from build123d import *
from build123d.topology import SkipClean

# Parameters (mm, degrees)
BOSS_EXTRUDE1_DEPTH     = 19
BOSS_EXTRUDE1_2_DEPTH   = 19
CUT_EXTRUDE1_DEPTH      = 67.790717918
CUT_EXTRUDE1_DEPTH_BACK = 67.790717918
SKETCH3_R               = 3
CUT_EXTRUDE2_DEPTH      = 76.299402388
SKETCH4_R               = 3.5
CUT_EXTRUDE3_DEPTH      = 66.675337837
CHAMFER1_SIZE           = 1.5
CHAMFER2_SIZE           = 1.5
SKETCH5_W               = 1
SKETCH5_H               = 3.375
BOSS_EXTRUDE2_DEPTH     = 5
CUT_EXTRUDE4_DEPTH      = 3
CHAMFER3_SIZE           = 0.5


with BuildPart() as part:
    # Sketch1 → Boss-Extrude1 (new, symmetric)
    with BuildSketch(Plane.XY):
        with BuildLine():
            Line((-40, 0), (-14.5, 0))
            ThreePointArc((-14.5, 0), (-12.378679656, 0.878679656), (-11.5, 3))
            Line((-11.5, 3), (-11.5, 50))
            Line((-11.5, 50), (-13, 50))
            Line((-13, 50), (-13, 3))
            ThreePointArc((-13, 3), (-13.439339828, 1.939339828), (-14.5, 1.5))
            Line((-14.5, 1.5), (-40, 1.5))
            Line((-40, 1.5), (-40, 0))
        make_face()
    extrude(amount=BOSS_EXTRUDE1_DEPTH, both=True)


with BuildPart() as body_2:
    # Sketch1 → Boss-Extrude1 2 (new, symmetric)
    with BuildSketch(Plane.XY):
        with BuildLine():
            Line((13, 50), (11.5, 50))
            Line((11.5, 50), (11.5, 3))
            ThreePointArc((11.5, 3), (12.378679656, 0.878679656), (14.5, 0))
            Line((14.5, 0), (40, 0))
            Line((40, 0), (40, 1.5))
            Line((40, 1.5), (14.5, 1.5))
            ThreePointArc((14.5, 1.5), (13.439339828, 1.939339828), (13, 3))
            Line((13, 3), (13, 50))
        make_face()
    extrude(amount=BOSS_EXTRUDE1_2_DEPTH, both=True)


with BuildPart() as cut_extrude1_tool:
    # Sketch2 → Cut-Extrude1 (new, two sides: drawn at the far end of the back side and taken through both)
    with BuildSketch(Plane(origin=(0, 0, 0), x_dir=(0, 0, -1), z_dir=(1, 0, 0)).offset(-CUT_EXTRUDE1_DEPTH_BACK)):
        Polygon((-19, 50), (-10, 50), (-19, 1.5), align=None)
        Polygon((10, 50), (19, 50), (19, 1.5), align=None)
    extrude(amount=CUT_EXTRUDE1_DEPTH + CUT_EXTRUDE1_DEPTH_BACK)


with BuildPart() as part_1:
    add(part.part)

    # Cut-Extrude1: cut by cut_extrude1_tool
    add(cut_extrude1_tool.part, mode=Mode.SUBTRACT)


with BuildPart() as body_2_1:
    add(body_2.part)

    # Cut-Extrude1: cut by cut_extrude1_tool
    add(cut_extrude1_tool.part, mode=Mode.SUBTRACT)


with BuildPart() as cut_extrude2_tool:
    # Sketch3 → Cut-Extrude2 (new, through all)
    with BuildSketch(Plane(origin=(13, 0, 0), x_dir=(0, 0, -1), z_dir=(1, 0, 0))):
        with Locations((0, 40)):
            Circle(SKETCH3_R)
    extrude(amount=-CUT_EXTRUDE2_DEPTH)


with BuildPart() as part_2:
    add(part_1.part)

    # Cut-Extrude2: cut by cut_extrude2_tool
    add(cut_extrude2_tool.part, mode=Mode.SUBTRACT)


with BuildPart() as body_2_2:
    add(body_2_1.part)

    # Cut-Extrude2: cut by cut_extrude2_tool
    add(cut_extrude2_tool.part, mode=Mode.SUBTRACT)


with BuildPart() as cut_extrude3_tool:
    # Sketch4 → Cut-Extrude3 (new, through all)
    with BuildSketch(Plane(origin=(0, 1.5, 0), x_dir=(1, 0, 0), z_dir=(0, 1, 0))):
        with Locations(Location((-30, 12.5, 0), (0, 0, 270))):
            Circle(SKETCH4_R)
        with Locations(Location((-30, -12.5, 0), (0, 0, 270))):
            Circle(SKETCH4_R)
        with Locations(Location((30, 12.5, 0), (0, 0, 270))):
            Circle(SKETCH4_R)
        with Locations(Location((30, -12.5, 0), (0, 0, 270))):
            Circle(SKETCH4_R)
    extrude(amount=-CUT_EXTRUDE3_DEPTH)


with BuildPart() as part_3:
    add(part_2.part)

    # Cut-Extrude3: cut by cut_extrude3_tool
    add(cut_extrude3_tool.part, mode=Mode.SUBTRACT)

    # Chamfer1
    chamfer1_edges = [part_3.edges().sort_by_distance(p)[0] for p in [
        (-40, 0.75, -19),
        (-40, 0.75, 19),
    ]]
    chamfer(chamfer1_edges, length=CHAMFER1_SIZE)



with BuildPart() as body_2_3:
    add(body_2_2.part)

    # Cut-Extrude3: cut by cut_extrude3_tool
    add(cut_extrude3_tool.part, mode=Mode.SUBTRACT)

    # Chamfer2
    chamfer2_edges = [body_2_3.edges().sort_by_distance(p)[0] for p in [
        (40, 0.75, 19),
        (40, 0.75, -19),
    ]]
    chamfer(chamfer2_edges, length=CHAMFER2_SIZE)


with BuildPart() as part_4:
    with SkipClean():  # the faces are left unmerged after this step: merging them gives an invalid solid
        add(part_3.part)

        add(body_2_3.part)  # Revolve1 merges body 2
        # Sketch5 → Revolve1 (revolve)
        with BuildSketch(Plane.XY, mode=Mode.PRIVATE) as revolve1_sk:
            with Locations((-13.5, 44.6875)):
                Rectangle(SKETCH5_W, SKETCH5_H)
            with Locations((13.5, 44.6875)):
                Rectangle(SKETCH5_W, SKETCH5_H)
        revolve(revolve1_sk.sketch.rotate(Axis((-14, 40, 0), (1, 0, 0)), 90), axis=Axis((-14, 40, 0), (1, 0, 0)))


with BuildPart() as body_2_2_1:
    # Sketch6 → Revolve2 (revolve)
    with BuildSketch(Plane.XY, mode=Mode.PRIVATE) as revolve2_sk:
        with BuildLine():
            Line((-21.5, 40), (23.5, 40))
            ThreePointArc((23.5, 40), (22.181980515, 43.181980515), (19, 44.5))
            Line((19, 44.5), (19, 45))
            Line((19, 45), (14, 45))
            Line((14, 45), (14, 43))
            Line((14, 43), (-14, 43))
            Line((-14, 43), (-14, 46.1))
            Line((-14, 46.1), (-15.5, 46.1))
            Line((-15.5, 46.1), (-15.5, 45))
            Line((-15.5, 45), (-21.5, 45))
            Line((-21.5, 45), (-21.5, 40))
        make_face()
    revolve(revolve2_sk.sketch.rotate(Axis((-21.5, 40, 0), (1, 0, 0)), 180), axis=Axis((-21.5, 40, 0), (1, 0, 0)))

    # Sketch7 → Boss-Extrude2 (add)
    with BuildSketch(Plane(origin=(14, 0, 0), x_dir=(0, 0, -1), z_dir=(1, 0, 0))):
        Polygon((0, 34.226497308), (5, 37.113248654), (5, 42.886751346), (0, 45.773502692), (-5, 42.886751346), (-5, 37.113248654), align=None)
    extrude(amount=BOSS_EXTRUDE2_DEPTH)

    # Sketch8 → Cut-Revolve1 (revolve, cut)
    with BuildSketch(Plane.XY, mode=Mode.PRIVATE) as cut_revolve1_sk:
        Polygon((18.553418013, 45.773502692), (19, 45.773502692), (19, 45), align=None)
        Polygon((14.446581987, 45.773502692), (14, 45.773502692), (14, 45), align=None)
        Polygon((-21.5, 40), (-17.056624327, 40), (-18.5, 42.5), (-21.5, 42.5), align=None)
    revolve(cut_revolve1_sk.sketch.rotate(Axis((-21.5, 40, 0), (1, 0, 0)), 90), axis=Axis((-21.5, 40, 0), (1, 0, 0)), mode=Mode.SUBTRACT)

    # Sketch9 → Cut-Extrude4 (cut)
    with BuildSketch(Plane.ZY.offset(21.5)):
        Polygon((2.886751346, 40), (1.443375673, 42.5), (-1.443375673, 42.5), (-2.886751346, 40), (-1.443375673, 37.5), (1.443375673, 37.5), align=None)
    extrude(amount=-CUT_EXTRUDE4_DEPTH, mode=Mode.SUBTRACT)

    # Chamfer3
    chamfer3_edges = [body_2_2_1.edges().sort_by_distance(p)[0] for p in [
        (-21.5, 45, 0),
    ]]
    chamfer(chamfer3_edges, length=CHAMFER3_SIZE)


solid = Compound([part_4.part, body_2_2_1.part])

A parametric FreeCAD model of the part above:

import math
import FreeCAD as App
import Part
import Sketcher
Q = App.Units.Quantity


def edges_at(feature, points):
    """Names of the edges that pass closest to the given points."""
    edges = feature.Shape.Edges
    near = lambda p: min(range(len(edges)), key=lambda i: edges[i].distToShape(Part.Vertex(*p))[0])
    return sorted({f"Edge{near(p) + 1}" for p in points})

doc = App.newDocument("Part")
body = doc.addObject("PartDesign::Body", "Body")

sketch1 = body.newObject("Sketcher::SketchObject", "Sketch")
sketch1.AttachmentSupport = (doc.getObject("XY_Plane"), [""])
sketch1.MapMode = "FlatFace"
sketch1.addGeometry(Part.LineSegment(App.Vector(-40, 0, 0), App.Vector(-14.5, 0, 0)), False)
sketch1.addGeometry(Part.ArcOfCircle(Part.Circle(App.Vector(-14.5, 3, 0), App.Vector(0, 0, 1), 3), math.radians(-90), math.radians(0)), False)
sketch1.addGeometry(Part.LineSegment(App.Vector(-11.5, 3, 0), App.Vector(-11.5, 50, 0)), False)
sketch1.addGeometry(Part.LineSegment(App.Vector(-11.5, 50, 0), App.Vector(-13, 50, 0)), False)
sketch1.addGeometry(Part.LineSegment(App.Vector(-13, 50, 0), App.Vector(-13, 3, 0)), False)
sketch1.addGeometry(Part.ArcOfCircle(Part.Circle(App.Vector(-14.5, 3, 0), App.Vector(0, 0, 1), 1.5), math.radians(-90), math.radians(0)), False)
sketch1.addGeometry(Part.LineSegment(App.Vector(-14.5, 1.5, 0), App.Vector(-40, 1.5, 0)), False)
sketch1.addGeometry(Part.LineSegment(App.Vector(-40, 1.5, 0), App.Vector(-40, 0, 0)), False)
sketch1.addConstraint(Sketcher.Constraint("Tangent", 0, 2, 1, 1))
sketch1.addConstraint(Sketcher.Constraint("Tangent", 1, 2, 2, 1))
sketch1.addConstraint(Sketcher.Constraint("Coincident", 2, 2, 3, 1))
sketch1.addConstraint(Sketcher.Constraint("Coincident", 3, 2, 4, 1))
sketch1.addConstraint(Sketcher.Constraint("Tangent", 4, 2, 5, 2))
sketch1.addConstraint(Sketcher.Constraint("Tangent", 5, 1, 6, 1))
sketch1.addConstraint(Sketcher.Constraint("Coincident", 6, 2, 7, 1))
sketch1.addConstraint(Sketcher.Constraint("Coincident", 7, 2, 0, 1))
sketch1.addConstraint(Sketcher.Constraint("Horizontal", 0))
sketch1.addConstraint(Sketcher.Constraint("Vertical", 2))
sketch1.addConstraint(Sketcher.Constraint("Horizontal", 3))
sketch1.addConstraint(Sketcher.Constraint("Vertical", 4))
sketch1.addConstraint(Sketcher.Constraint("Horizontal", 6))
sketch1.addConstraint(Sketcher.Constraint("Vertical", 7))
sketch1.addConstraint(Sketcher.Constraint("Coincident", 5, 3, 1, 3))
sketch1.addConstraint(Sketcher.Constraint("PointOnObject", 0, 2, -1))
sketch1.addConstraint(Sketcher.Constraint("Radius", 1, Q("3 mm")))
sketch1.addConstraint(Sketcher.Constraint("Radius", 5, Q("1.5 mm")))
sketch1.addConstraint(Sketcher.Constraint("DistanceY", 2, 1, 2, 2, Q("47 mm")))
sketch1.addConstraint(Sketcher.Constraint("DistanceX", 0, 1, 0, 2, Q("25.5 mm")))
sketch1.addConstraint(Sketcher.Constraint("DistanceX", 3, 2, -1, 1, Q("13 mm")))
pad1 = body.newObject("PartDesign::Pad", "Pad")
pad1.Profile = sketch1
pad1.Length = 38
pad1.Midplane = True
body2 = doc.addObject("PartDesign::Body", "Body001")

sketch2 = body2.newObject("Sketcher::SketchObject", "Sketch001")
sketch2.AttachmentSupport = (doc.getObject("XY_Plane001"), [""])
sketch2.MapMode = "FlatFace"
sketch2.addGeometry(Part.LineSegment(App.Vector(13, 50, 0), App.Vector(11.5, 50, 0)), False)
sketch2.addGeometry(Part.LineSegment(App.Vector(11.5, 50, 0), App.Vector(11.5, 3, 0)), False)
sketch2.addGeometry(Part.ArcOfCircle(Part.Circle(App.Vector(14.5, 3, 0), App.Vector(0, 0, 1), 3), math.radians(180), math.radians(270)), False)
sketch2.addGeometry(Part.LineSegment(App.Vector(14.5, 0, 0), App.Vector(40, 0, 0)), False)
sketch2.addGeometry(Part.LineSegment(App.Vector(40, 0, 0), App.Vector(40, 1.5, 0)), False)
sketch2.addGeometry(Part.LineSegment(App.Vector(40, 1.5, 0), App.Vector(14.5, 1.5, 0)), False)
sketch2.addGeometry(Part.ArcOfCircle(Part.Circle(App.Vector(14.5, 3, 0), App.Vector(0, 0, 1), 1.5), math.radians(180), math.radians(270)), False)
sketch2.addGeometry(Part.LineSegment(App.Vector(13, 3, 0), App.Vector(13, 50, 0)), False)
sketch2.addConstraint(Sketcher.Constraint("Coincident", 0, 2, 1, 1))
sketch2.addConstraint(Sketcher.Constraint("Tangent", 1, 2, 2, 1))
sketch2.addConstraint(Sketcher.Constraint("Tangent", 2, 2, 3, 1))
sketch2.addConstraint(Sketcher.Constraint("Coincident", 3, 2, 4, 1))
sketch2.addConstraint(Sketcher.Constraint("Coincident", 4, 2, 5, 1))
sketch2.addConstraint(Sketcher.Constraint("Tangent", 5, 2, 6, 2))
sketch2.addConstraint(Sketcher.Constraint("Tangent", 6, 1, 7, 1))
sketch2.addConstraint(Sketcher.Constraint("Coincident", 7, 2, 0, 1))
sketch2.addConstraint(Sketcher.Constraint("Horizontal", 0))
sketch2.addConstraint(Sketcher.Constraint("Vertical", 1))
sketch2.addConstraint(Sketcher.Constraint("Horizontal", 3))
sketch2.addConstraint(Sketcher.Constraint("Vertical", 4))
sketch2.addConstraint(Sketcher.Constraint("Horizontal", 5))
sketch2.addConstraint(Sketcher.Constraint("Vertical", 7))
sketch2.addConstraint(Sketcher.Constraint("Coincident", 6, 3, 2, 3))
sketch2.addConstraint(Sketcher.Constraint("PointOnObject", 2, 2, -1))
sketch2.addConstraint(Sketcher.Constraint("Radius", 2, Q("3 mm")))
sketch2.addConstraint(Sketcher.Constraint("Radius", 6, Q("1.5 mm")))
sketch2.addConstraint(Sketcher.Constraint("DistanceY", 1, 2, 1, 1, Q("47 mm")))
sketch2.addConstraint(Sketcher.Constraint("DistanceX", 3, 1, 3, 2, Q("25.5 mm")))
sketch2.addConstraint(Sketcher.Constraint("DistanceX", -1, 1, 3, 2, Q("40 mm")))
pad2 = body2.newObject("PartDesign::Pad", "Pad001")
pad2.Profile = sketch2
pad2.Length = 38
pad2.Midplane = True
body3 = doc.addObject("PartDesign::Body", "Body002")
body3.AllowCompound = True

sketch3 = body3.newObject("Sketcher::SketchObject", "Sketch002")
sketch3.AttachmentSupport = (doc.getObject("YZ_Plane002"), [""])
sketch3.MapMode = "FlatFace"
sketch3.addGeometry(Part.LineSegment(App.Vector(50, 10, 0), App.Vector(50, 19, 0)), False)
sketch3.addGeometry(Part.LineSegment(App.Vector(50, 19, 0), App.Vector(2, 19, 0)), False)
sketch3.addGeometry(Part.LineSegment(App.Vector(2, 19, 0), App.Vector(50, 10, 0)), False)
sketch3.addGeometry(Part.LineSegment(App.Vector(50, -19, 0), App.Vector(50, -10, 0)), False)
sketch3.addGeometry(Part.LineSegment(App.Vector(50, -10, 0), App.Vector(2, -19, 0)), False)
sketch3.addGeometry(Part.LineSegment(App.Vector(2, -19, 0), App.Vector(50, -19, 0)), False)
sketch3.addConstraint(Sketcher.Constraint("Coincident", 0, 2, 1, 1))
sketch3.addConstraint(Sketcher.Constraint("Coincident", 1, 2, 2, 1))
sketch3.addConstraint(Sketcher.Constraint("Coincident", 2, 2, 0, 1))
sketch3.addConstraint(Sketcher.Constraint("Coincident", 3, 2, 4, 1))
sketch3.addConstraint(Sketcher.Constraint("Coincident", 4, 2, 5, 1))
sketch3.addConstraint(Sketcher.Constraint("Coincident", 5, 2, 3, 1))
sketch3.addConstraint(Sketcher.Constraint("Vertical", 0))
sketch3.addConstraint(Sketcher.Constraint("Horizontal", 1))
sketch3.addConstraint(Sketcher.Constraint("Vertical", 3))
sketch3.addConstraint(Sketcher.Constraint("Horizontal", 5))
sketch3.addConstraint(Sketcher.Constraint("Symmetric", 2, 2, 3, 2, -1))
sketch3.addConstraint(Sketcher.Constraint("Symmetric", 1, 2, 4, 2, -1))
sketch3.addConstraint(Sketcher.Constraint("DistanceY", 0, 1, 0, 2, Q("9 mm")))
sketch3.addConstraint(Sketcher.Constraint("DistanceX", 1, 2, 1, 1, Q("48.5 mm")))
sketch3.addConstraint(Sketcher.Constraint("DistanceX", -1, 1, 0, 2, Q("50 mm")))
sketch3.addConstraint(Sketcher.Constraint("DistanceY", -1, 1, 0, 2, Q("19 mm")))
pad3 = body3.newObject("PartDesign::Pad", "Pad002")
pad3.Profile = sketch3
pad3.Type = "TwoLengths"
pad3.Length = 67.790718
pad3.Length2 = 67.790718
doc.recompute()

body4 = doc.addObject("PartDesign::Body", "Body003")
body4.BaseFeature = body3
boolean = body.newObject("PartDesign::Boolean", "Boolean")
boolean.Type = "Cut"
boolean.addObjects([body4])
doc.recompute()

boolean2 = body2.newObject("PartDesign::Boolean", "Boolean001")
boolean2.Type = "Cut"
boolean2.addObjects([body3])
body5 = doc.addObject("PartDesign::Body", "Body004")

sketch4 = body5.newObject("Sketcher::SketchObject", "Sketch003")
sketch4.AttachmentSupport = (doc.getObject("YZ_Plane004"), [""])
sketch4.MapMode = "FlatFace"
sketch4.AttachmentOffset = App.Placement(App.Vector(0, 0, 13), App.Rotation())
sketch4.addGeometry(Part.Circle(App.Vector(40, 0, 0), App.Vector(0, 0, 1), 3), False)
sketch4.addConstraint(Sketcher.Constraint("PointOnObject", 0, 3, -1))
sketch4.addConstraint(Sketcher.Constraint("Diameter", 0, Q("6 mm")))
sketch4.addConstraint(Sketcher.Constraint("DistanceX", -1, 1, 0, 3, Q("40 mm")))
pad4 = body5.newObject("PartDesign::Pad", "Pad003")
pad4.Profile = sketch4
pad4.Length = 76.299402
pad4.Reversed = True
doc.recompute()

body6 = doc.addObject("PartDesign::Body", "Body005")
body6.BaseFeature = body5
boolean3 = body.newObject("PartDesign::Boolean", "Boolean002")
boolean3.Type = "Cut"
boolean3.addObjects([body6])
doc.recompute()

boolean4 = body2.newObject("PartDesign::Boolean", "Boolean003")
boolean4.Type = "Cut"
boolean4.addObjects([body5])
body7 = doc.addObject("PartDesign::Body", "Body006")
body7.AllowCompound = True

sketch5 = body7.newObject("Sketcher::SketchObject", "Sketch004")
sketch5.AttachmentSupport = (doc.getObject("XZ_Plane006"), [""])
sketch5.MapMode = "FlatFace"
sketch5.AttachmentOffset = App.Placement(App.Vector(0, 0, -1.5), App.Rotation())
sketch5.addGeometry(Part.Circle(App.Vector(-30, -12.5, 0), App.Vector(0, 0, 1), 3.5), False)
sketch5.addGeometry(Part.Circle(App.Vector(-30, 12.5, 0), App.Vector(0, 0, 1), 3.5), False)
sketch5.addGeometry(Part.Circle(App.Vector(30, -12.5, 0), App.Vector(0, 0, 1), 3.5), False)
sketch5.addGeometry(Part.Circle(App.Vector(30, 12.5, 0), App.Vector(0, 0, 1), 3.5), False)
sketch5.addConstraint(Sketcher.Constraint("Equal", 0, 1))
sketch5.addConstraint(Sketcher.Constraint("Equal", 1, 2))
sketch5.addConstraint(Sketcher.Constraint("Equal", 2, 3))
sketch5.addConstraint(Sketcher.Constraint("Symmetric", 1, 3, 2, 3, -1, 1))
sketch5.addConstraint(Sketcher.Constraint("Symmetric", 0, 3, 3, 3, -1, 1))
sketch5.addConstraint(Sketcher.Constraint("Symmetric", 0, 3, 2, 3, -2))
sketch5.addConstraint(Sketcher.Constraint("Diameter", 0, Q("7 mm")))
sketch5.addConstraint(Sketcher.Constraint("DistanceX", 0, 3, -1, 1, Q("30 mm")))
sketch5.addConstraint(Sketcher.Constraint("DistanceY", 0, 3, 1, 3, Q("25 mm")))
pad5 = body7.newObject("PartDesign::Pad", "Pad004")
pad5.Profile = sketch5
pad5.Length = 66.675338
doc.recompute()

body8 = doc.addObject("PartDesign::Body", "Body007")
body8.BaseFeature = body7
boolean5 = body.newObject("PartDesign::Boolean", "Boolean004")
boolean5.Type = "Cut"
boolean5.addObjects([body8])
doc.recompute()

chamfer = body.newObject("PartDesign::Chamfer", "Chamfer")
chamfer.Base = (boolean5, edges_at(boolean5, [(-40, 0.75, -19), (-40, 0.75, 19)]))
chamfer.Size = 1.5
doc.recompute()

boolean6 = body2.newObject("PartDesign::Boolean", "Boolean005")
boolean6.Type = "Cut"
boolean6.addObjects([body7])
doc.recompute()

chamfer2 = body2.newObject("PartDesign::Chamfer", "Chamfer001")
chamfer2.Base = (boolean6, edges_at(boolean6, [(40, 0.75, 19), (40, 0.75, -19)]))
chamfer2.Size = 1.5
body.AllowCompound = True
doc.recompute()

boolean7 = body.newObject("PartDesign::Boolean", "Boolean006")
boolean7.Type = "Fuse"
boolean7.addObjects([body2])

sketch6 = body.newObject("Sketcher::SketchObject", "Sketch005")
sketch6.AttachmentSupport = (doc.getObject("XY_Plane"), [""])
sketch6.MapMode = "FlatFace"
sketch6.addGeometry(Part.LineSegment(App.Vector(-14, 46.4, 0), App.Vector(-14, 43, 0)), False)
sketch6.addGeometry(Part.LineSegment(App.Vector(-14, 43, 0), App.Vector(-13, 43, 0)), False)
sketch6.addGeometry(Part.LineSegment(App.Vector(-13, 43, 0), App.Vector(-13, 46.4, 0)), False)
sketch6.addGeometry(Part.LineSegment(App.Vector(-13, 46.4, 0), App.Vector(-14, 46.4, 0)), False)
sketch6.addGeometry(Part.LineSegment(App.Vector(13, 46.4, 0), App.Vector(13, 43, 0)), False)
sketch6.addGeometry(Part.LineSegment(App.Vector(13, 43, 0), App.Vector(14, 43, 0)), False)
sketch6.addGeometry(Part.LineSegment(App.Vector(14, 43, 0), App.Vector(14, 46.4, 0)), False)
sketch6.addGeometry(Part.LineSegment(App.Vector(14, 46.4, 0), App.Vector(13, 46.4, 0)), False)
sketch6.addGeometry(Part.LineSegment(App.Vector(-14, 40, 0), App.Vector(14, 40, 0)), True)
sketch6.addConstraint(Sketcher.Constraint("Coincident", 0, 2, 1, 1))
sketch6.addConstraint(Sketcher.Constraint("Coincident", 1, 2, 2, 1))
sketch6.addConstraint(Sketcher.Constraint("Coincident", 2, 2, 3, 1))
sketch6.addConstraint(Sketcher.Constraint("Coincident", 3, 2, 0, 1))
sketch6.addConstraint(Sketcher.Constraint("Coincident", 4, 2, 5, 1))
sketch6.addConstraint(Sketcher.Constraint("Coincident", 5, 2, 6, 1))
sketch6.addConstraint(Sketcher.Constraint("Coincident", 6, 2, 7, 1))
sketch6.addConstraint(Sketcher.Constraint("Coincident", 7, 2, 4, 1))
sketch6.addConstraint(Sketcher.Constraint("Vertical", 0))
sketch6.addConstraint(Sketcher.Constraint("Horizontal", 1))
sketch6.addConstraint(Sketcher.Constraint("Vertical", 2))
sketch6.addConstraint(Sketcher.Constraint("Horizontal", 3))
sketch6.addConstraint(Sketcher.Constraint("Vertical", 4))
sketch6.addConstraint(Sketcher.Constraint("Horizontal", 5))
sketch6.addConstraint(Sketcher.Constraint("Vertical", 6))
sketch6.addConstraint(Sketcher.Constraint("Horizontal", 7))
sketch6.addConstraint(Sketcher.Constraint("Horizontal", 8))
sketch6.addConstraint(Sketcher.Constraint("Symmetric", 1, 2, 4, 2, -2))
sketch6.addConstraint(Sketcher.Constraint("Symmetric", 3, 2, 6, 2, -2))
sketch6.addConstraint(Sketcher.Constraint("Vertical", 3, 2, 8, 1))
sketch6.addConstraint(Sketcher.Constraint("Vertical", 6, 2, 8, 2))
sketch6.addConstraint(Sketcher.Constraint("DistanceX", 1, 1, 1, 2, Q("1 mm")))
sketch6.addConstraint(Sketcher.Constraint("DistanceX", 8, 1, 8, 2, Q("28 mm")))
sketch6.addConstraint(Sketcher.Constraint("DistanceY", -1, 1, 0, 2, Q("43 mm")))
sketch6.addConstraint(Sketcher.Constraint("DistanceY", -1, 1, 8, 1, Q("40 mm")))
sketch6.addConstraint(Sketcher.Constraint("DistanceY", 0, 2, 0, 1, Q("3.375 mm")))
revolution = body.newObject("PartDesign::Revolution", "Revolution")
revolution.Profile = sketch6
revolution.ReferenceAxis = (sketch6, ["Axis0"])
revolution.Angle = 360
body9 = doc.addObject("PartDesign::Body", "Body008")

sketch7 = body9.newObject("Sketcher::SketchObject", "Sketch006")
sketch7.AttachmentSupport = (doc.getObject("XY_Plane008"), [""])
sketch7.MapMode = "FlatFace"
sketch7.addGeometry(Part.LineSegment(App.Vector(-21.5, 40, 0), App.Vector(23.5, 40, 0)), False)
sketch7.addGeometry(Part.ArcOfCircle(Part.Circle(App.Vector(19, 40, 0), App.Vector(0, 0, 1), 4.5), math.radians(0), math.radians(90)), False)
sketch7.addGeometry(Part.LineSegment(App.Vector(19, 44.5, 0), App.Vector(19, 45, 0)), False)
sketch7.addGeometry(Part.LineSegment(App.Vector(19, 45, 0), App.Vector(14, 45, 0)), False)
sketch7.addGeometry(Part.LineSegment(App.Vector(14, 45, 0), App.Vector(14, 43, 0)), False)
sketch7.addGeometry(Part.LineSegment(App.Vector(14, 43, 0), App.Vector(-14, 43, 0)), False)
sketch7.addGeometry(Part.LineSegment(App.Vector(-14, 43, 0), App.Vector(-14, 46.1, 0)), False)
sketch7.addGeometry(Part.LineSegment(App.Vector(-14, 46.1, 0), App.Vector(-15.5, 46.1, 0)), False)
sketch7.addGeometry(Part.LineSegment(App.Vector(-15.5, 46.1, 0), App.Vector(-15.5, 45, 0)), False)
sketch7.addGeometry(Part.LineSegment(App.Vector(-15.5, 45, 0), App.Vector(-21.5, 45, 0)), False)
sketch7.addGeometry(Part.LineSegment(App.Vector(-21.5, 45, 0), App.Vector(-21.5, 40, 0)), False)
sketch7.addGeometry(Part.LineSegment(App.Vector(-21.5, 40, 0), App.Vector(23.5, 40, 0)), True)
sketch7.addConstraint(Sketcher.Constraint("Coincident", 0, 2, 1, 1))
sketch7.addConstraint(Sketcher.Constraint("Coincident", 1, 2, 2, 1))
sketch7.addConstraint(Sketcher.Constraint("Coincident", 2, 2, 3, 1))
sketch7.addConstraint(Sketcher.Constraint("Coincident", 3, 2, 4, 1))
sketch7.addConstraint(Sketcher.Constraint("Coincident", 4, 2, 5, 1))
sketch7.addConstraint(Sketcher.Constraint("Coincident", 5, 2, 6, 1))
sketch7.addConstraint(Sketcher.Constraint("Coincident", 6, 2, 7, 1))
sketch7.addConstraint(Sketcher.Constraint("Coincident", 7, 2, 8, 1))
sketch7.addConstraint(Sketcher.Constraint("Coincident", 8, 2, 9, 1))
sketch7.addConstraint(Sketcher.Constraint("Coincident", 9, 2, 10, 1))
sketch7.addConstraint(Sketcher.Constraint("Coincident", 10, 2, 0, 1))
sketch7.addConstraint(Sketcher.Constraint("Horizontal", 0))
sketch7.addConstraint(Sketcher.Constraint("Vertical", 2))
sketch7.addConstraint(Sketcher.Constraint("Horizontal", 3))
sketch7.addConstraint(Sketcher.Constraint("Vertical", 4))
sketch7.addConstraint(Sketcher.Constraint("Horizontal", 5))
sketch7.addConstraint(Sketcher.Constraint("Vertical", 6))
sketch7.addConstraint(Sketcher.Constraint("Horizontal", 7))
sketch7.addConstraint(Sketcher.Constraint("Vertical", 8))
sketch7.addConstraint(Sketcher.Constraint("Horizontal", 9))
sketch7.addConstraint(Sketcher.Constraint("Vertical", 10))
sketch7.addConstraint(Sketcher.Constraint("Horizontal", 11))
sketch7.addConstraint(Sketcher.Constraint("Coincident", 11, 1, 10, 2))
sketch7.addConstraint(Sketcher.Constraint("Horizontal", 1, 3, 0, 2))
sketch7.addConstraint(Sketcher.Constraint("Horizontal", 3, 2, 8, 2))
sketch7.addConstraint(Sketcher.Constraint("Equal", 0, 11))
sketch7.addConstraint(Sketcher.Constraint("Equal", 3, 10))
sketch7.addConstraint(Sketcher.Constraint("Radius", 1, Q("4.5 mm")))
sketch7.addConstraint(Sketcher.Constraint("DistanceX", 0, 1, 0, 2, Q("45 mm")))
sketch7.addConstraint(Sketcher.Constraint("DistanceX", 3, 2, 3, 1, Q("5 mm")))
sketch7.addConstraint(Sketcher.Constraint("DistanceX", 5, 2, 5, 1, Q("28 mm")))
sketch7.addConstraint(Sketcher.Constraint("DistanceX", 9, 2, 9, 1, Q("6 mm")))
sketch7.addConstraint(Sketcher.Constraint("DistanceY", 4, 2, 4, 1, Q("2 mm")))
sketch7.addConstraint(Sketcher.Constraint("DistanceX", 7, 2, 7, 1, Q("1.5 mm")))
sketch7.addConstraint(Sketcher.Constraint("DistanceY", 6, 1, 6, 2, Q("3.1 mm")))
sketch7.addConstraint(Sketcher.Constraint("DistanceX", -1, 1, 1, 3, Q("19 mm")))
sketch7.addConstraint(Sketcher.Constraint("DistanceY", -1, 1, 1, 3, Q("40 mm")))
revolution2 = body9.newObject("PartDesign::Revolution", "Revolution001")
revolution2.Profile = sketch7
revolution2.ReferenceAxis = (sketch7, ["Axis0"])
revolution2.Angle = 360

sketch8 = body9.newObject("Sketcher::SketchObject", "Sketch007")
sketch8.AttachmentSupport = (doc.getObject("YZ_Plane008"), [""])
sketch8.MapMode = "FlatFace"
sketch8.AttachmentOffset = App.Placement(App.Vector(0, 0, 14), App.Rotation())
sketch8.addGeometry(Part.LineSegment(App.Vector(34, 0, 0), App.Vector(37, -5, 0)), False)
sketch8.addGeometry(Part.LineSegment(App.Vector(37, -5, 0), App.Vector(43, -5, 0)), False)
sketch8.addGeometry(Part.LineSegment(App.Vector(43, -5, 0), App.Vector(46, 0, 0)), False)
sketch8.addGeometry(Part.LineSegment(App.Vector(46, 0, 0), App.Vector(43, 5, 0)), False)
sketch8.addGeometry(Part.LineSegment(App.Vector(43, 5, 0), App.Vector(37, 5, 0)), False)
sketch8.addGeometry(Part.LineSegment(App.Vector(37, 5, 0), App.Vector(34, 0, 0)), False)
sketch8.addConstraint(Sketcher.Constraint("Coincident", 0, 2, 1, 1))
sketch8.addConstraint(Sketcher.Constraint("Coincident", 1, 2, 2, 1))
sketch8.addConstraint(Sketcher.Constraint("Coincident", 2, 2, 3, 1))
sketch8.addConstraint(Sketcher.Constraint("Coincident", 3, 2, 4, 1))
sketch8.addConstraint(Sketcher.Constraint("Coincident", 4, 2, 5, 1))
sketch8.addConstraint(Sketcher.Constraint("Coincident", 5, 2, 0, 1))
sketch8.addConstraint(Sketcher.Constraint("Horizontal", 1))
sketch8.addConstraint(Sketcher.Constraint("Horizontal", 4))
sketch8.addConstraint(Sketcher.Constraint("Symmetric", 1, 2, 3, 2, -1))
sketch8.addConstraint(Sketcher.Constraint("PointOnObject", 2, 2, -1))
sketch8.addConstraint(Sketcher.Constraint("PointOnObject", 5, 2, -1))
sketch8.addConstraint(Sketcher.Constraint("Parallel", 0, 3))
sketch8.addConstraint(Sketcher.Constraint("Parallel", 2, 5))
sketch8.addConstraint(Sketcher.Constraint("Angle", 0, Q("-60 deg")))
sketch8.addConstraint(Sketcher.Constraint("DistanceY", 0, 2, -1, 1, Q("5 mm")))
sketch8.addConstraint(Sketcher.Constraint("DistanceX", 1, 1, 1, 2, Q("5.773503 mm")))
sketch8.addConstraint(Sketcher.Constraint("DistanceX", -1, 1, 0, 2, Q("37.113249 mm")))
pad6 = body9.newObject("PartDesign::Pad", "Pad005")
pad6.Profile = sketch8
pad6.Length = 5

sketch9 = body9.newObject("Sketcher::SketchObject", "Sketch008")
sketch9.AttachmentSupport = (doc.getObject("XY_Plane008"), [""])
sketch9.MapMode = "FlatFace"
sketch9.addGeometry(Part.LineSegment(App.Vector(19, 45.77, 0), App.Vector(18.55, 45.77, 0)), False)
sketch9.addGeometry(Part.LineSegment(App.Vector(18.55, 45.77, 0), App.Vector(19, 45, 0)), False)
sketch9.addGeometry(Part.LineSegment(App.Vector(19, 45, 0), App.Vector(19, 45.77, 0)), False)
sketch9.addGeometry(Part.LineSegment(App.Vector(14.45, 45.77, 0), App.Vector(14, 45.77, 0)), False)
sketch9.addGeometry(Part.LineSegment(App.Vector(14, 45.77, 0), App.Vector(14, 45, 0)), False)
sketch9.addGeometry(Part.LineSegment(App.Vector(14, 45, 0), App.Vector(14.45, 45.77, 0)), False)
sketch9.addGeometry(Part.LineSegment(App.Vector(-21.5, 40, 0), App.Vector(-17.06, 40, 0)), False)
sketch9.addGeometry(Part.LineSegment(App.Vector(-17.06, 40, 0), App.Vector(-18.5, 42.5, 0)), False)
sketch9.addGeometry(Part.LineSegment(App.Vector(-18.5, 42.5, 0), App.Vector(-21.5, 42.5, 0)), False)
sketch9.addGeometry(Part.LineSegment(App.Vector(-21.5, 42.5, 0), App.Vector(-21.5, 40, 0)), False)
sketch9.addGeometry(Part.LineSegment(App.Vector(-21.5, 40, 0), App.Vector(19, 40, 0)), True)
sketch9.addConstraint(Sketcher.Constraint("Coincident", 0, 2, 1, 1))
sketch9.addConstraint(Sketcher.Constraint("Coincident", 1, 2, 2, 1))
sketch9.addConstraint(Sketcher.Constraint("Coincident", 2, 2, 0, 1))
sketch9.addConstraint(Sketcher.Constraint("Coincident", 3, 2, 4, 1))
sketch9.addConstraint(Sketcher.Constraint("Coincident", 4, 2, 5, 1))
sketch9.addConstraint(Sketcher.Constraint("Coincident", 5, 2, 3, 1))
sketch9.addConstraint(Sketcher.Constraint("Coincident", 6, 2, 7, 1))
sketch9.addConstraint(Sketcher.Constraint("Coincident", 7, 2, 8, 1))
sketch9.addConstraint(Sketcher.Constraint("Coincident", 8, 2, 9, 1))
sketch9.addConstraint(Sketcher.Constraint("Coincident", 9, 2, 6, 1))
sketch9.addConstraint(Sketcher.Constraint("Horizontal", 0))
sketch9.addConstraint(Sketcher.Constraint("Vertical", 2))
sketch9.addConstraint(Sketcher.Constraint("Horizontal", 3))
sketch9.addConstraint(Sketcher.Constraint("Vertical", 4))
sketch9.addConstraint(Sketcher.Constraint("Horizontal", 6))
sketch9.addConstraint(Sketcher.Constraint("Horizontal", 8))
sketch9.addConstraint(Sketcher.Constraint("Vertical", 9))
sketch9.addConstraint(Sketcher.Constraint("Horizontal", 10))
sketch9.addConstraint(Sketcher.Constraint("Coincident", 10, 1, 9, 2))
sketch9.addConstraint(Sketcher.Constraint("Parallel", 1, 7))
sketch9.addConstraint(Sketcher.Constraint("Horizontal", 2, 2, 3, 2))
sketch9.addConstraint(Sketcher.Constraint("Horizontal", 1, 2, 4, 2))
sketch9.addConstraint(Sketcher.Constraint("Vertical", 2, 2, 10, 2))
sketch9.addConstraint(Sketcher.Constraint("Equal", 0, 3))
sketch9.addConstraint(Sketcher.Constraint("DistanceX", 8, 2, 8, 1, Q("3 mm")))
sketch9.addConstraint(Sketcher.Constraint("Angle", 1, Q("-60 deg")))
sketch9.addConstraint(Sketcher.Constraint("DistanceX", 10, 1, 10, 2, Q("40.5 mm")))
sketch9.addConstraint(Sketcher.Constraint("DistanceY", 9, 2, 9, 1, Q("2.5 mm")))
sketch9.addConstraint(Sketcher.Constraint("DistanceX", -1, 1, 1, 2, Q("19 mm")))
sketch9.addConstraint(Sketcher.Constraint("DistanceY", -1, 1, 1, 2, Q("45 mm")))
sketch9.addConstraint(Sketcher.Constraint("DistanceX", -1, 1, 3, 2, Q("14 mm")))
sketch9.addConstraint(Sketcher.Constraint("DistanceY", -1, 1, 6, 2, Q("40 mm")))
sketch9.addConstraint(Sketcher.Constraint("DistanceX", 0, 2, 0, 1, Q("0.446582 mm")))
groove = body9.newObject("PartDesign::Groove", "Groove")
groove.Profile = sketch9
groove.ReferenceAxis = (sketch9, ["Axis0"])
groove.Angle = 360

sketch10 = body9.newObject("Sketcher::SketchObject", "Sketch009")
sketch10.AttachmentSupport = (doc.getObject("YZ_Plane008"), [""])
sketch10.MapMode = "FlatFace"
sketch10.AttachmentOffset = App.Placement(App.Vector(0, 0, -21.5), App.Rotation())
sketch10.addGeometry(Part.LineSegment(App.Vector(40, 2.9, 0), App.Vector(42.5, 1.4, 0)), False)
sketch10.addGeometry(Part.LineSegment(App.Vector(42.5, 1.4, 0), App.Vector(42.5, -1.4, 0)), False)
sketch10.addGeometry(Part.LineSegment(App.Vector(42.5, -1.4, 0), App.Vector(40, -2.9, 0)), False)
sketch10.addGeometry(Part.LineSegment(App.Vector(40, -2.9, 0), App.Vector(37.5, -1.4, 0)), False)
sketch10.addGeometry(Part.LineSegment(App.Vector(37.5, -1.4, 0), App.Vector(37.5, 1.4, 0)), False)
sketch10.addGeometry(Part.LineSegment(App.Vector(37.5, 1.4, 0), App.Vector(40, 2.9, 0)), False)
sketch10.addConstraint(Sketcher.Constraint("Coincident", 0, 2, 1, 1))
sketch10.addConstraint(Sketcher.Constraint("Coincident", 1, 2, 2, 1))
sketch10.addConstraint(Sketcher.Constraint("Coincident", 2, 2, 3, 1))
sketch10.addConstraint(Sketcher.Constraint("Coincident", 3, 2, 4, 1))
sketch10.addConstraint(Sketcher.Constraint("Coincident", 4, 2, 5, 1))
sketch10.addConstraint(Sketcher.Constraint("Coincident", 5, 2, 0, 1))
sketch10.addConstraint(Sketcher.Constraint("Vertical", 1))
sketch10.addConstraint(Sketcher.Constraint("Vertical", 4))
sketch10.addConstraint(Sketcher.Constraint("Symmetric", 2, 2, 5, 2, -1))
sketch10.addConstraint(Sketcher.Constraint("Parallel", 0, 3))
sketch10.addConstraint(Sketcher.Constraint("Parallel", 2, 5))
sketch10.addConstraint(Sketcher.Constraint("Horizontal", 1, 2, 3, 2))
sketch10.addConstraint(Sketcher.Constraint("Horizontal", 0, 2, 4, 2))
sketch10.addConstraint(Sketcher.Constraint("Angle", 0, Q("-30 deg")))
sketch10.addConstraint(Sketcher.Constraint("DistanceX", -1, 1, 2, 2, Q("40 mm")))
sketch10.addConstraint(Sketcher.Constraint("DistanceX", 3, 2, 1, 2, Q("5 mm")))
sketch10.addConstraint(Sketcher.Constraint("DistanceY", 1, 2, 1, 1, Q("2.886751 mm")))
pocket1 = body9.newObject("PartDesign::Pocket", "Pocket")
pocket1.Profile = sketch10
pocket1.Length = 3
pocket1.Reversed = True
doc.recompute()

chamfer3 = body9.newObject("PartDesign::Chamfer", "Chamfer002")
chamfer3.Base = (pocket1, edges_at(pocket1, [(-21.5, 45, 0)]))
chamfer3.Size = 0.5

doc.recompute()
